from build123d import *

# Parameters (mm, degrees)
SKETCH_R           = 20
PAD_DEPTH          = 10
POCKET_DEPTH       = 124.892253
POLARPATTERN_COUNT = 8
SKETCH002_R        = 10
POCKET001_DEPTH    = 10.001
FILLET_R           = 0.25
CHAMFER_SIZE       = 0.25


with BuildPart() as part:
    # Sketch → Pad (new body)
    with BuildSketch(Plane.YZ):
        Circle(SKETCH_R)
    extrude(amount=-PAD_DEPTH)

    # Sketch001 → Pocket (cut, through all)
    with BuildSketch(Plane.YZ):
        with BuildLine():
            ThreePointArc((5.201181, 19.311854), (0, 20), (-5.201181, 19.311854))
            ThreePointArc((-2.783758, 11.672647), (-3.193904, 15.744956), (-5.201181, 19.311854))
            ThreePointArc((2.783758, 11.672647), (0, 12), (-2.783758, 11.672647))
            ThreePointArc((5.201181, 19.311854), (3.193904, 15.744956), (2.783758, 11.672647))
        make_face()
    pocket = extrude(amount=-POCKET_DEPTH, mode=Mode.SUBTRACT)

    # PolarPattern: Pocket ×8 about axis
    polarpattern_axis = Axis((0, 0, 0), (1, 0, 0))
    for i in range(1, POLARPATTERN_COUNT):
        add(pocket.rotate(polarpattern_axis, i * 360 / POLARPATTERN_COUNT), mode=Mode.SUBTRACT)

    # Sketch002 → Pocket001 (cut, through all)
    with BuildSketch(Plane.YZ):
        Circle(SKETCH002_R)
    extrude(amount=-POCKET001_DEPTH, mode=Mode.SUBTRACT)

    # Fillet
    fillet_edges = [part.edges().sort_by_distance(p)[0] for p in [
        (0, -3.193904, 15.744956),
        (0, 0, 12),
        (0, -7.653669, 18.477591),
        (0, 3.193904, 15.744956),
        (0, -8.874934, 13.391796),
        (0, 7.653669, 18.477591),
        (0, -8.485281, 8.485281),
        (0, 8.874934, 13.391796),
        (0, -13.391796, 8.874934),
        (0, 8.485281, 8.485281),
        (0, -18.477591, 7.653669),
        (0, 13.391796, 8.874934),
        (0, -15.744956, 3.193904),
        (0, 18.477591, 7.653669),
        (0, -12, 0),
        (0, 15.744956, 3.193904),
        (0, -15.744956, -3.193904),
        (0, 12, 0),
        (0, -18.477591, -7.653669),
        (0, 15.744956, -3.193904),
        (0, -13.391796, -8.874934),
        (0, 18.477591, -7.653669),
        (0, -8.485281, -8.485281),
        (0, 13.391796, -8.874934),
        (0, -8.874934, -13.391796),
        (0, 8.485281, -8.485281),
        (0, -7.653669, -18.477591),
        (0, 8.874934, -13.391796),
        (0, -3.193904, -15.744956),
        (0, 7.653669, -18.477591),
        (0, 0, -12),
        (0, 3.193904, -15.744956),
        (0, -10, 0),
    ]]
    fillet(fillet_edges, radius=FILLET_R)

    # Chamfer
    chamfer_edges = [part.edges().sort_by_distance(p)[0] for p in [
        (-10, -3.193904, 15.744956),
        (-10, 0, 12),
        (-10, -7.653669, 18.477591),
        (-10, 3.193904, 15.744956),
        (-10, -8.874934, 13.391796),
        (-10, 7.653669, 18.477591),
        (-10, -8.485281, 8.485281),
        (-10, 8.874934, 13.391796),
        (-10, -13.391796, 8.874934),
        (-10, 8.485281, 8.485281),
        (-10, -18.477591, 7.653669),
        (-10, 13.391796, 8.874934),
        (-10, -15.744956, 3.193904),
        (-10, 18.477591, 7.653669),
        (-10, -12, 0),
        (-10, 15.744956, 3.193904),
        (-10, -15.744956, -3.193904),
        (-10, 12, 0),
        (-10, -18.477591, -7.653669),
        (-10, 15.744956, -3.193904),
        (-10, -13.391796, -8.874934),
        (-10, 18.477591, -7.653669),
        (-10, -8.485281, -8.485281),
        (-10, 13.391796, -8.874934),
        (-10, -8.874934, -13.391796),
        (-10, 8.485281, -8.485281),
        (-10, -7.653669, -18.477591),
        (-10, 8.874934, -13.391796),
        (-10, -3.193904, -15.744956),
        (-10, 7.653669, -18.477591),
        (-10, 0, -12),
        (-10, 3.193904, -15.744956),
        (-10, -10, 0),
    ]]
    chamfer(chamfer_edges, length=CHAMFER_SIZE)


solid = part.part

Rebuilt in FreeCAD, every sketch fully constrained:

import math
import FreeCAD as App
import Part
import Sketcher
from FreeCAD import Vector


def edges_at(feature, points):
    """Names of the edges that pass closest to the given points."""
    edges = feature.Shape.Edges
    near = lambda p: min(range(len(edges)), key=lambda i: edges[i].distToShape(Part.Vertex(*p))[0])
    return sorted({f"Edge{near(p) + 1}" for p in points})

doc = App.newDocument("Part")
params = doc.addObject("Spreadsheet::Sheet", "Params")
for row, (alias, value) in enumerate([
    ("sketch1_diameter", "40 mm"),
    ("pad1_length", "10 mm"),
    ("sketch2_radius", "10.000002 mm"),
    ("sketch3_diameter", "20 mm"),
    ("fillet_radius", "0.25 mm"),
    ("chamfer_size", "0.25 mm"),
], start=1):
    params.set(f"A{row}", alias)
    params.set(f"B{row}", "=" + value)
    params.setAlias(f"B{row}", alias)

body = doc.addObject("PartDesign::Body", "Body")

# Sketch on YZ plane
sketch1 = body.newObject("Sketcher::SketchObject", "Sketch")
sketch1.AttachmentSupport = (doc.getObject("YZ_Plane"), [""])
sketch1.MapMode = "FlatFace"
sketch1.addGeometry(Part.Circle(Vector(0, 0, 0), Vector(0, 0, 1), 20), False)
sketch1.addConstraint(Sketcher.Constraint("Coincident", 0, 3, -1, 1))
sketch1.addConstraint(Sketcher.Constraint("Diameter", 0, 40.0))
sketch1.setExpression("Constraints[1]", "Params.sketch1_diameter")
pad1 = body.newObject("PartDesign::Pad", "Pad")
pad1.Profile = sketch1
pad1.setExpression("Length", "Params.pad1_length")
pad1.Reversed = True

# Sketch on YZ plane
sketch2 = body.newObject("Sketcher::SketchObject", "Sketch001")
sketch2.AttachmentSupport = (doc.getObject("YZ_Plane"), [""])
sketch2.MapMode = "FlatFace"
sketch2.addGeometry(Part.ArcOfCircle(Part.Circle(Vector(0, 0, 0), Vector(0, 0, 1), 20), math.radians(75), math.radians(105)), False)
sketch2.addGeometry(Part.ArcOfCircle(Part.Circle(Vector(-13, 13, 0), Vector(0, 0, 1), 10), math.radians(-6), math.radians(41)), False)
sketch2.addGeometry(Part.ArcOfCircle(Part.Circle(Vector(0, 0, 0), Vector(0, 0, 1), 12), math.radians(77), math.radians(103)), False)
sketch2.addGeometry(Part.ArcOfCircle(Part.Circle(Vector(13, 13, 0), Vector(0, 0, 1), 10), math.radians(139), math.radians(186)), False)
sketch2.addConstraint(Sketcher.Constraint("Coincident", 0, 2, 1, 2))
sketch2.addConstraint(Sketcher.Constraint("Coincident", 1, 1, 2, 2))
sketch2.addConstraint(Sketcher.Constraint("Coincident", 2, 1, 3, 2))
sketch2.addConstraint(Sketcher.Constraint("Coincident", 3, 1, 0, 1))
sketch2.addConstraint(Sketcher.Constraint("Coincident", 0, 3, -1, 1))
sketch2.addConstraint(Sketcher.Constraint("Coincident", 2, 3, -1, 1))
sketch2.addConstraint(Sketcher.Constraint("Equal", 1, 3))
sketch2.addConstraint(Sketcher.Constraint("Symmetric", 1, 3, 3, 3, -2))
sketch2.addConstraint(Sketcher.Constraint("Radius", 1, 10.000002))
sketch2.addConstraint(Sketcher.Constraint("Radius", 0, 19.999992))
sketch2.addConstraint(Sketcher.Constraint("Radius", 2, 11.999995))
sketch2.addConstraint(Sketcher.Constraint("DistanceY", -1, 1, 1, 3, 12.727921))
sketch2.addConstraint(Sketcher.Constraint("DistanceX", 0, 2, -1, 1, 5.201181))
sketch2.setExpression("Constraints[8]", "Params.sketch2_radius")
pocket1 = body.newObject("PartDesign::Pocket", "Pocket")
pocket1.Profile = sketch2
pocket1.Type = "ThroughAll"
doc.recompute()

polarpattern = body.newObject("PartDesign::PolarPattern", "PolarPattern")
polarpattern.Originals = [pocket1]
polarpattern.Axis = (doc.getObject("X_Axis"), [""])
polarpattern.Angle = 360
polarpattern.Occurrences = 8
body.Tip = polarpattern

# Sketch on YZ plane
sketch3 = body.newObject("Sketcher::SketchObject", "Sketch002")
sketch3.AttachmentSupport = (doc.getObject("YZ_Plane"), [""])
sketch3.MapMode = "FlatFace"
sketch3.addGeometry(Part.Circle(Vector(0, 0, 0), Vector(0, 0, 1), 10), False)
sketch3.addConstraint(Sketcher.Constraint("Coincident", 0, 3, -1, 1))
sketch3.addConstraint(Sketcher.Constraint("Diameter", 0, 20.0))
sketch3.setExpression("Constraints[1]", "Params.sketch3_diameter")
pocket2 = body.newObject("PartDesign::Pocket", "Pocket001")
pocket2.Profile = sketch3
pocket2.Type = "ThroughAll"
doc.recompute()

fillet = body.newObject("PartDesign::Fillet", "Fillet")
fillet.Base = (pocket2, edges_at(pocket2, [
    (0, -3.194, 15.745),
    (0, 0, 12),
    (0, -7.654, 18.478),
    (0, 3.194, 15.745),
    (0, -8.875, 13.392),
    (0, 7.654, 18.478),
    (0, -8.485, 8.485),
    (0, 8.875, 13.392),
    (0, -13.392, 8.875),
    (0, 8.485, 8.485),
    (0, -18.478, 7.654),
    (0, 13.392, 8.875),
    (0, -15.745, 3.194),
    (0, 18.478, 7.654),
    (0, -12, 0),
    (0, 15.745, 3.194),
    (0, -15.745, -3.194),
    (0, 12, 0),
    (0, -18.478, -7.654),
    (0, 15.745, -3.194),
    (0, -13.392, -8.875),
    (0, 18.478, -7.654),
    (0, -8.485, -8.485),
    (0, 13.392, -8.875),
    (0, -8.875, -13.392),
    (0, 8.485, -8.485),
    (0, -7.654, -18.478),
    (0, 8.875, -13.392),
    (0, -3.194, -15.745),
    (0, 7.654, -18.478),
    (0, 0, -12),
    (0, 3.194, -15.745),
    (0, -10, 0),
]))
fillet.setExpression("Radius", "Params.fillet_radius")
doc.recompute()

chamfer = body.newObject("PartDesign::Chamfer", "Chamfer")
chamfer.Base = (fillet, edges_at(fillet, [
    (-10, -3.194, 15.745),
    (-10, 0, 12),
    (-10, -7.654, 18.478),
    (-10, 3.194, 15.745),
    (-10, -8.875, 13.392),
    (-10, 7.654, 18.478),
    (-10, -8.485, 8.485),
    (-10, 8.875, 13.392),
    (-10, -13.392, 8.875),
    (-10, 8.485, 8.485),
    (-10, -18.478, 7.654),
    (-10, 13.392, 8.875),
    (-10, -15.745, 3.194),
    (-10, 18.478, 7.654),
    (-10, -12, 0),
    (-10, 15.745, 3.194),
    (-10, -15.745, -3.194),
    (-10, 12, 0),
    (-10, -18.478, -7.654),
    (-10, 15.745, -3.194),
    (-10, -13.392, -8.875),
    (-10, 18.478, -7.654),
    (-10, -8.485, -8.485),
    (-10, 13.392, -8.875),
    (-10, -8.875, -13.392),
    (-10, 8.485, -8.485),
    (-10, -7.654, -18.478),
    (-10, 8.875, -13.392),
    (-10, -3.194, -15.745),
    (-10, 7.654, -18.478),
    (-10, 0, -12),
    (-10, 3.194, -15.745),
    (-10, -10, 0),
]))
chamfer.setExpression("Size", "Params.chamfer_size")

doc.recompute()
